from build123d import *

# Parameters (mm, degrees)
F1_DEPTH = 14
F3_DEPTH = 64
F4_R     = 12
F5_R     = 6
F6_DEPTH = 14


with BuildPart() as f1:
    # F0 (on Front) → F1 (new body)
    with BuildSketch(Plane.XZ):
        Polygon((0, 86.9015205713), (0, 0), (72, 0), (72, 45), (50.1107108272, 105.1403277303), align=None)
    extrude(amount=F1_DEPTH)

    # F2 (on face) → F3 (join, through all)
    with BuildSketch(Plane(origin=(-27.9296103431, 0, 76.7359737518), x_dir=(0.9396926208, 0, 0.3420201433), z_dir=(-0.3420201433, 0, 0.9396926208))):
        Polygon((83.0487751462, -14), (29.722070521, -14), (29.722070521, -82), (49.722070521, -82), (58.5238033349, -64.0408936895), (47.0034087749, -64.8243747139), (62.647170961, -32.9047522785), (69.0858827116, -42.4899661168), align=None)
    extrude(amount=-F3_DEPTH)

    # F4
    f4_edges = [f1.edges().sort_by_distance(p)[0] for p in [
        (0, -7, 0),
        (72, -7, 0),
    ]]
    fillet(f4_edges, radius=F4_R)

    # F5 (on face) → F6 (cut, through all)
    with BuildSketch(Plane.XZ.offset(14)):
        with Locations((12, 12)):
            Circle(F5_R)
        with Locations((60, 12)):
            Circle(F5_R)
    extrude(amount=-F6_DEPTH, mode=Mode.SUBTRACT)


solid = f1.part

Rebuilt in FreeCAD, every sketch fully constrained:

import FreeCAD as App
import Part
import Sketcher
Q = App.Units.Quantity


def edges_at(feature, points):
    """Names of the edges that pass closest to the given points."""
    edges = feature.Shape.Edges
    near = lambda p: min(range(len(edges)), key=lambda i: edges[i].distToShape(Part.Vertex(*p))[0])
    return sorted({f"Edge{near(p) + 1}" for p in points})

doc = App.newDocument("Part")
body = doc.addObject("PartDesign::Body", "Body")

sketch1 = body.newObject("Sketcher::SketchObject", "Sketch")
sketch1.AttachmentSupport = (doc.getObject("XZ_Plane"), [""])
sketch1.MapMode = "FlatFace"
sketch1.addGeometry([
    Part.LineSegment(App.Vector(0, 86.901521, 0), App.Vector(0, 0, 0)),
    Part.LineSegment(App.Vector(0, 0, 0), App.Vector(72, 0, 0)),
    Part.LineSegment(App.Vector(72, 0, 0), App.Vector(72, 45, 0)),
    Part.LineSegment(App.Vector(72, 45, 0), App.Vector(50.110711, 105.140328, 0)),
    Part.LineSegment(App.Vector(50.110711, 105.140328, 0), App.Vector(0, 86.901521, 0)),
], False)
sketch1.addConstraint([
    Sketcher.Constraint("Coincident", 0, 2, 1, 1),
    Sketcher.Constraint("Coincident", 1, 2, 2, 1),
    Sketcher.Constraint("Coincident", 2, 2, 3, 1),
    Sketcher.Constraint("Coincident", 3, 2, 4, 1),
    Sketcher.Constraint("Coincident", 4, 2, 0, 1),
    Sketcher.Constraint("Vertical", 0),
    Sketcher.Constraint("Horizontal", 1),
    Sketcher.Constraint("Vertical", 2),
    Sketcher.Constraint("Coincident", 0, 2, -1, 1),
    Sketcher.Constraint("Perpendicular", 3, 4),
    Sketcher.Constraint("DistanceX", 1, 1, 1, 2, Q("72 mm")),
    Sketcher.Constraint("DistanceY", 2, 1, 2, 2, Q("45 mm")),
    Sketcher.Constraint("Angle", 3, Q("110 deg")),
    Sketcher.Constraint("Distance", 3, Q("64 mm")),
])
pad1 = body.newObject("PartDesign::Pad", "Pad")
pad1.Profile = sketch1
pad1.Length = 14

sketch2 = body.newObject("Sketcher::SketchObject", "Sketch001")
sketch2.Placement = App.Placement(App.Vector(-27.92961, 0, 76.735974), App.Rotation(App.Vector(0.939692621, 0, 0.342020143), App.Vector(0, 1, 0), App.Vector(-0.342020143, 0, 0.939692621), "ZXY"))
sketch2.addGeometry([
    Part.LineSegment(App.Vector(83.048775, -14, 0), App.Vector(29.722071, -14, 0)),
    Part.LineSegment(App.Vector(29.722071, -14, 0), App.Vector(29.722071, -82, 0)),
    Part.LineSegment(App.Vector(29.722071, -82, 0), App.Vector(49.722071, -82, 0)),
    Part.LineSegment(App.Vector(49.722071, -82, 0), App.Vector(58.523803, -64.040894, 0)),
    Part.LineSegment(App.Vector(58.523803, -64.040894, 0), App.Vector(47.003409, -64.824375, 0)),
    Part.LineSegment(App.Vector(47.003409, -64.824375, 0), App.Vector(62.647171, -32.904752, 0)),
    Part.LineSegment(App.Vector(62.647171, -32.904752, 0), App.Vector(69.085883, -42.489966, 0)),
    Part.LineSegment(App.Vector(69.085883, -42.489966, 0), App.Vector(83.048775, -14, 0)),
], False)
sketch2.addConstraint([
    Sketcher.Constraint("Coincident", 0, 2, 1, 1),
    Sketcher.Constraint("Coincident", 1, 2, 2, 1),
    Sketcher.Constraint("Coincident", 2, 2, 3, 1),
    Sketcher.Constraint("Coincident", 3, 2, 4, 1),
    Sketcher.Constraint("Coincident", 4, 2, 5, 1),
    Sketcher.Constraint("Coincident", 5, 2, 6, 1),
    Sketcher.Constraint("Coincident", 6, 2, 7, 1),
    Sketcher.Constraint("Coincident", 7, 2, 0, 1),
    Sketcher.Constraint("Horizontal", 0),
    Sketcher.Constraint("Vertical", 1),
    Sketcher.Constraint("Horizontal", 2),
    Sketcher.Constraint("Parallel", 3, 5),
    Sketcher.Constraint("Parallel", 5, 7),
    Sketcher.Constraint("Equal", 4, 6),
    Sketcher.Constraint("DistanceX", 2, 1, 2, 2, Q("20 mm")),
    Sketcher.Constraint("DistanceY", 1, 2, 1, 1, Q("68 mm")),
    Sketcher.Constraint("Distance", 3, Q("20 mm")),
    Sketcher.Constraint("DistanceY", 0, 2, -1, 1, Q("14 mm")),
    Sketcher.Constraint("Distance", 7, Q("31.727599 mm")),
    Sketcher.Constraint("DistanceX", 0, 2, 5, 2, Q("32.9251 mm")),
    Sketcher.Constraint("DistanceX", 0, 2, 0, 1, Q("53.326705 mm")),
    Sketcher.Constraint("DistanceX", -1, 1, 0, 2, Q("29.722071 mm")),
    Sketcher.Constraint("DistanceX", -1, 1, 4, 2, Q("47.003409 mm")),
    Sketcher.Constraint("DistanceY", 4, 2, 3, 2, Q("0.783481 mm")),
])
pad2 = body.newObject("PartDesign::Pad", "Pad001")
pad2.Profile = sketch2
pad2.Length = 64
pad2.Reversed = True
doc.recompute()

fillet = body.newObject("PartDesign::Fillet", "Fillet")
fillet.Base = (pad2, edges_at(pad2, [(0, -7, 0), (72, -7, 0)]))
fillet.Radius = 12

sketch3 = body.newObject("Sketcher::SketchObject", "Sketch002")
sketch3.AttachmentSupport = (doc.getObject("XZ_Plane"), [""])
sketch3.MapMode = "FlatFace"
sketch3.AttachmentOffset = App.Placement(App.Vector(0, 0, 14), App.Rotation())
sketch3.addGeometry([
    Part.Circle(App.Vector(12, 12, 0), App.Vector(0, 0, 1), 6),
    Part.Circle(App.Vector(60, 12, 0), App.Vector(0, 0, 1), 6),
], False)
sketch3.addConstraint([
    Sketcher.Constraint("Equal", 0, 1),
    Sketcher.Constraint("Horizontal", 0, 3, 1, 3),
    Sketcher.Constraint("Diameter", 0, Q("12 mm")),
    Sketcher.Constraint("DistanceX", -1, 1, 0, 3, Q("12 mm")),
    Sketcher.Constraint("DistanceY", -1, 1, 0, 3, Q("12 mm")),
    Sketcher.Constraint("DistanceX", -1, 1, 1, 3, Q("60 mm")),
])
pocket1 = body.newObject("PartDesign::Pocket", "Pocket")
pocket1.Profile = sketch3
pocket1.Type = "ThroughAll"

doc.recompute()
